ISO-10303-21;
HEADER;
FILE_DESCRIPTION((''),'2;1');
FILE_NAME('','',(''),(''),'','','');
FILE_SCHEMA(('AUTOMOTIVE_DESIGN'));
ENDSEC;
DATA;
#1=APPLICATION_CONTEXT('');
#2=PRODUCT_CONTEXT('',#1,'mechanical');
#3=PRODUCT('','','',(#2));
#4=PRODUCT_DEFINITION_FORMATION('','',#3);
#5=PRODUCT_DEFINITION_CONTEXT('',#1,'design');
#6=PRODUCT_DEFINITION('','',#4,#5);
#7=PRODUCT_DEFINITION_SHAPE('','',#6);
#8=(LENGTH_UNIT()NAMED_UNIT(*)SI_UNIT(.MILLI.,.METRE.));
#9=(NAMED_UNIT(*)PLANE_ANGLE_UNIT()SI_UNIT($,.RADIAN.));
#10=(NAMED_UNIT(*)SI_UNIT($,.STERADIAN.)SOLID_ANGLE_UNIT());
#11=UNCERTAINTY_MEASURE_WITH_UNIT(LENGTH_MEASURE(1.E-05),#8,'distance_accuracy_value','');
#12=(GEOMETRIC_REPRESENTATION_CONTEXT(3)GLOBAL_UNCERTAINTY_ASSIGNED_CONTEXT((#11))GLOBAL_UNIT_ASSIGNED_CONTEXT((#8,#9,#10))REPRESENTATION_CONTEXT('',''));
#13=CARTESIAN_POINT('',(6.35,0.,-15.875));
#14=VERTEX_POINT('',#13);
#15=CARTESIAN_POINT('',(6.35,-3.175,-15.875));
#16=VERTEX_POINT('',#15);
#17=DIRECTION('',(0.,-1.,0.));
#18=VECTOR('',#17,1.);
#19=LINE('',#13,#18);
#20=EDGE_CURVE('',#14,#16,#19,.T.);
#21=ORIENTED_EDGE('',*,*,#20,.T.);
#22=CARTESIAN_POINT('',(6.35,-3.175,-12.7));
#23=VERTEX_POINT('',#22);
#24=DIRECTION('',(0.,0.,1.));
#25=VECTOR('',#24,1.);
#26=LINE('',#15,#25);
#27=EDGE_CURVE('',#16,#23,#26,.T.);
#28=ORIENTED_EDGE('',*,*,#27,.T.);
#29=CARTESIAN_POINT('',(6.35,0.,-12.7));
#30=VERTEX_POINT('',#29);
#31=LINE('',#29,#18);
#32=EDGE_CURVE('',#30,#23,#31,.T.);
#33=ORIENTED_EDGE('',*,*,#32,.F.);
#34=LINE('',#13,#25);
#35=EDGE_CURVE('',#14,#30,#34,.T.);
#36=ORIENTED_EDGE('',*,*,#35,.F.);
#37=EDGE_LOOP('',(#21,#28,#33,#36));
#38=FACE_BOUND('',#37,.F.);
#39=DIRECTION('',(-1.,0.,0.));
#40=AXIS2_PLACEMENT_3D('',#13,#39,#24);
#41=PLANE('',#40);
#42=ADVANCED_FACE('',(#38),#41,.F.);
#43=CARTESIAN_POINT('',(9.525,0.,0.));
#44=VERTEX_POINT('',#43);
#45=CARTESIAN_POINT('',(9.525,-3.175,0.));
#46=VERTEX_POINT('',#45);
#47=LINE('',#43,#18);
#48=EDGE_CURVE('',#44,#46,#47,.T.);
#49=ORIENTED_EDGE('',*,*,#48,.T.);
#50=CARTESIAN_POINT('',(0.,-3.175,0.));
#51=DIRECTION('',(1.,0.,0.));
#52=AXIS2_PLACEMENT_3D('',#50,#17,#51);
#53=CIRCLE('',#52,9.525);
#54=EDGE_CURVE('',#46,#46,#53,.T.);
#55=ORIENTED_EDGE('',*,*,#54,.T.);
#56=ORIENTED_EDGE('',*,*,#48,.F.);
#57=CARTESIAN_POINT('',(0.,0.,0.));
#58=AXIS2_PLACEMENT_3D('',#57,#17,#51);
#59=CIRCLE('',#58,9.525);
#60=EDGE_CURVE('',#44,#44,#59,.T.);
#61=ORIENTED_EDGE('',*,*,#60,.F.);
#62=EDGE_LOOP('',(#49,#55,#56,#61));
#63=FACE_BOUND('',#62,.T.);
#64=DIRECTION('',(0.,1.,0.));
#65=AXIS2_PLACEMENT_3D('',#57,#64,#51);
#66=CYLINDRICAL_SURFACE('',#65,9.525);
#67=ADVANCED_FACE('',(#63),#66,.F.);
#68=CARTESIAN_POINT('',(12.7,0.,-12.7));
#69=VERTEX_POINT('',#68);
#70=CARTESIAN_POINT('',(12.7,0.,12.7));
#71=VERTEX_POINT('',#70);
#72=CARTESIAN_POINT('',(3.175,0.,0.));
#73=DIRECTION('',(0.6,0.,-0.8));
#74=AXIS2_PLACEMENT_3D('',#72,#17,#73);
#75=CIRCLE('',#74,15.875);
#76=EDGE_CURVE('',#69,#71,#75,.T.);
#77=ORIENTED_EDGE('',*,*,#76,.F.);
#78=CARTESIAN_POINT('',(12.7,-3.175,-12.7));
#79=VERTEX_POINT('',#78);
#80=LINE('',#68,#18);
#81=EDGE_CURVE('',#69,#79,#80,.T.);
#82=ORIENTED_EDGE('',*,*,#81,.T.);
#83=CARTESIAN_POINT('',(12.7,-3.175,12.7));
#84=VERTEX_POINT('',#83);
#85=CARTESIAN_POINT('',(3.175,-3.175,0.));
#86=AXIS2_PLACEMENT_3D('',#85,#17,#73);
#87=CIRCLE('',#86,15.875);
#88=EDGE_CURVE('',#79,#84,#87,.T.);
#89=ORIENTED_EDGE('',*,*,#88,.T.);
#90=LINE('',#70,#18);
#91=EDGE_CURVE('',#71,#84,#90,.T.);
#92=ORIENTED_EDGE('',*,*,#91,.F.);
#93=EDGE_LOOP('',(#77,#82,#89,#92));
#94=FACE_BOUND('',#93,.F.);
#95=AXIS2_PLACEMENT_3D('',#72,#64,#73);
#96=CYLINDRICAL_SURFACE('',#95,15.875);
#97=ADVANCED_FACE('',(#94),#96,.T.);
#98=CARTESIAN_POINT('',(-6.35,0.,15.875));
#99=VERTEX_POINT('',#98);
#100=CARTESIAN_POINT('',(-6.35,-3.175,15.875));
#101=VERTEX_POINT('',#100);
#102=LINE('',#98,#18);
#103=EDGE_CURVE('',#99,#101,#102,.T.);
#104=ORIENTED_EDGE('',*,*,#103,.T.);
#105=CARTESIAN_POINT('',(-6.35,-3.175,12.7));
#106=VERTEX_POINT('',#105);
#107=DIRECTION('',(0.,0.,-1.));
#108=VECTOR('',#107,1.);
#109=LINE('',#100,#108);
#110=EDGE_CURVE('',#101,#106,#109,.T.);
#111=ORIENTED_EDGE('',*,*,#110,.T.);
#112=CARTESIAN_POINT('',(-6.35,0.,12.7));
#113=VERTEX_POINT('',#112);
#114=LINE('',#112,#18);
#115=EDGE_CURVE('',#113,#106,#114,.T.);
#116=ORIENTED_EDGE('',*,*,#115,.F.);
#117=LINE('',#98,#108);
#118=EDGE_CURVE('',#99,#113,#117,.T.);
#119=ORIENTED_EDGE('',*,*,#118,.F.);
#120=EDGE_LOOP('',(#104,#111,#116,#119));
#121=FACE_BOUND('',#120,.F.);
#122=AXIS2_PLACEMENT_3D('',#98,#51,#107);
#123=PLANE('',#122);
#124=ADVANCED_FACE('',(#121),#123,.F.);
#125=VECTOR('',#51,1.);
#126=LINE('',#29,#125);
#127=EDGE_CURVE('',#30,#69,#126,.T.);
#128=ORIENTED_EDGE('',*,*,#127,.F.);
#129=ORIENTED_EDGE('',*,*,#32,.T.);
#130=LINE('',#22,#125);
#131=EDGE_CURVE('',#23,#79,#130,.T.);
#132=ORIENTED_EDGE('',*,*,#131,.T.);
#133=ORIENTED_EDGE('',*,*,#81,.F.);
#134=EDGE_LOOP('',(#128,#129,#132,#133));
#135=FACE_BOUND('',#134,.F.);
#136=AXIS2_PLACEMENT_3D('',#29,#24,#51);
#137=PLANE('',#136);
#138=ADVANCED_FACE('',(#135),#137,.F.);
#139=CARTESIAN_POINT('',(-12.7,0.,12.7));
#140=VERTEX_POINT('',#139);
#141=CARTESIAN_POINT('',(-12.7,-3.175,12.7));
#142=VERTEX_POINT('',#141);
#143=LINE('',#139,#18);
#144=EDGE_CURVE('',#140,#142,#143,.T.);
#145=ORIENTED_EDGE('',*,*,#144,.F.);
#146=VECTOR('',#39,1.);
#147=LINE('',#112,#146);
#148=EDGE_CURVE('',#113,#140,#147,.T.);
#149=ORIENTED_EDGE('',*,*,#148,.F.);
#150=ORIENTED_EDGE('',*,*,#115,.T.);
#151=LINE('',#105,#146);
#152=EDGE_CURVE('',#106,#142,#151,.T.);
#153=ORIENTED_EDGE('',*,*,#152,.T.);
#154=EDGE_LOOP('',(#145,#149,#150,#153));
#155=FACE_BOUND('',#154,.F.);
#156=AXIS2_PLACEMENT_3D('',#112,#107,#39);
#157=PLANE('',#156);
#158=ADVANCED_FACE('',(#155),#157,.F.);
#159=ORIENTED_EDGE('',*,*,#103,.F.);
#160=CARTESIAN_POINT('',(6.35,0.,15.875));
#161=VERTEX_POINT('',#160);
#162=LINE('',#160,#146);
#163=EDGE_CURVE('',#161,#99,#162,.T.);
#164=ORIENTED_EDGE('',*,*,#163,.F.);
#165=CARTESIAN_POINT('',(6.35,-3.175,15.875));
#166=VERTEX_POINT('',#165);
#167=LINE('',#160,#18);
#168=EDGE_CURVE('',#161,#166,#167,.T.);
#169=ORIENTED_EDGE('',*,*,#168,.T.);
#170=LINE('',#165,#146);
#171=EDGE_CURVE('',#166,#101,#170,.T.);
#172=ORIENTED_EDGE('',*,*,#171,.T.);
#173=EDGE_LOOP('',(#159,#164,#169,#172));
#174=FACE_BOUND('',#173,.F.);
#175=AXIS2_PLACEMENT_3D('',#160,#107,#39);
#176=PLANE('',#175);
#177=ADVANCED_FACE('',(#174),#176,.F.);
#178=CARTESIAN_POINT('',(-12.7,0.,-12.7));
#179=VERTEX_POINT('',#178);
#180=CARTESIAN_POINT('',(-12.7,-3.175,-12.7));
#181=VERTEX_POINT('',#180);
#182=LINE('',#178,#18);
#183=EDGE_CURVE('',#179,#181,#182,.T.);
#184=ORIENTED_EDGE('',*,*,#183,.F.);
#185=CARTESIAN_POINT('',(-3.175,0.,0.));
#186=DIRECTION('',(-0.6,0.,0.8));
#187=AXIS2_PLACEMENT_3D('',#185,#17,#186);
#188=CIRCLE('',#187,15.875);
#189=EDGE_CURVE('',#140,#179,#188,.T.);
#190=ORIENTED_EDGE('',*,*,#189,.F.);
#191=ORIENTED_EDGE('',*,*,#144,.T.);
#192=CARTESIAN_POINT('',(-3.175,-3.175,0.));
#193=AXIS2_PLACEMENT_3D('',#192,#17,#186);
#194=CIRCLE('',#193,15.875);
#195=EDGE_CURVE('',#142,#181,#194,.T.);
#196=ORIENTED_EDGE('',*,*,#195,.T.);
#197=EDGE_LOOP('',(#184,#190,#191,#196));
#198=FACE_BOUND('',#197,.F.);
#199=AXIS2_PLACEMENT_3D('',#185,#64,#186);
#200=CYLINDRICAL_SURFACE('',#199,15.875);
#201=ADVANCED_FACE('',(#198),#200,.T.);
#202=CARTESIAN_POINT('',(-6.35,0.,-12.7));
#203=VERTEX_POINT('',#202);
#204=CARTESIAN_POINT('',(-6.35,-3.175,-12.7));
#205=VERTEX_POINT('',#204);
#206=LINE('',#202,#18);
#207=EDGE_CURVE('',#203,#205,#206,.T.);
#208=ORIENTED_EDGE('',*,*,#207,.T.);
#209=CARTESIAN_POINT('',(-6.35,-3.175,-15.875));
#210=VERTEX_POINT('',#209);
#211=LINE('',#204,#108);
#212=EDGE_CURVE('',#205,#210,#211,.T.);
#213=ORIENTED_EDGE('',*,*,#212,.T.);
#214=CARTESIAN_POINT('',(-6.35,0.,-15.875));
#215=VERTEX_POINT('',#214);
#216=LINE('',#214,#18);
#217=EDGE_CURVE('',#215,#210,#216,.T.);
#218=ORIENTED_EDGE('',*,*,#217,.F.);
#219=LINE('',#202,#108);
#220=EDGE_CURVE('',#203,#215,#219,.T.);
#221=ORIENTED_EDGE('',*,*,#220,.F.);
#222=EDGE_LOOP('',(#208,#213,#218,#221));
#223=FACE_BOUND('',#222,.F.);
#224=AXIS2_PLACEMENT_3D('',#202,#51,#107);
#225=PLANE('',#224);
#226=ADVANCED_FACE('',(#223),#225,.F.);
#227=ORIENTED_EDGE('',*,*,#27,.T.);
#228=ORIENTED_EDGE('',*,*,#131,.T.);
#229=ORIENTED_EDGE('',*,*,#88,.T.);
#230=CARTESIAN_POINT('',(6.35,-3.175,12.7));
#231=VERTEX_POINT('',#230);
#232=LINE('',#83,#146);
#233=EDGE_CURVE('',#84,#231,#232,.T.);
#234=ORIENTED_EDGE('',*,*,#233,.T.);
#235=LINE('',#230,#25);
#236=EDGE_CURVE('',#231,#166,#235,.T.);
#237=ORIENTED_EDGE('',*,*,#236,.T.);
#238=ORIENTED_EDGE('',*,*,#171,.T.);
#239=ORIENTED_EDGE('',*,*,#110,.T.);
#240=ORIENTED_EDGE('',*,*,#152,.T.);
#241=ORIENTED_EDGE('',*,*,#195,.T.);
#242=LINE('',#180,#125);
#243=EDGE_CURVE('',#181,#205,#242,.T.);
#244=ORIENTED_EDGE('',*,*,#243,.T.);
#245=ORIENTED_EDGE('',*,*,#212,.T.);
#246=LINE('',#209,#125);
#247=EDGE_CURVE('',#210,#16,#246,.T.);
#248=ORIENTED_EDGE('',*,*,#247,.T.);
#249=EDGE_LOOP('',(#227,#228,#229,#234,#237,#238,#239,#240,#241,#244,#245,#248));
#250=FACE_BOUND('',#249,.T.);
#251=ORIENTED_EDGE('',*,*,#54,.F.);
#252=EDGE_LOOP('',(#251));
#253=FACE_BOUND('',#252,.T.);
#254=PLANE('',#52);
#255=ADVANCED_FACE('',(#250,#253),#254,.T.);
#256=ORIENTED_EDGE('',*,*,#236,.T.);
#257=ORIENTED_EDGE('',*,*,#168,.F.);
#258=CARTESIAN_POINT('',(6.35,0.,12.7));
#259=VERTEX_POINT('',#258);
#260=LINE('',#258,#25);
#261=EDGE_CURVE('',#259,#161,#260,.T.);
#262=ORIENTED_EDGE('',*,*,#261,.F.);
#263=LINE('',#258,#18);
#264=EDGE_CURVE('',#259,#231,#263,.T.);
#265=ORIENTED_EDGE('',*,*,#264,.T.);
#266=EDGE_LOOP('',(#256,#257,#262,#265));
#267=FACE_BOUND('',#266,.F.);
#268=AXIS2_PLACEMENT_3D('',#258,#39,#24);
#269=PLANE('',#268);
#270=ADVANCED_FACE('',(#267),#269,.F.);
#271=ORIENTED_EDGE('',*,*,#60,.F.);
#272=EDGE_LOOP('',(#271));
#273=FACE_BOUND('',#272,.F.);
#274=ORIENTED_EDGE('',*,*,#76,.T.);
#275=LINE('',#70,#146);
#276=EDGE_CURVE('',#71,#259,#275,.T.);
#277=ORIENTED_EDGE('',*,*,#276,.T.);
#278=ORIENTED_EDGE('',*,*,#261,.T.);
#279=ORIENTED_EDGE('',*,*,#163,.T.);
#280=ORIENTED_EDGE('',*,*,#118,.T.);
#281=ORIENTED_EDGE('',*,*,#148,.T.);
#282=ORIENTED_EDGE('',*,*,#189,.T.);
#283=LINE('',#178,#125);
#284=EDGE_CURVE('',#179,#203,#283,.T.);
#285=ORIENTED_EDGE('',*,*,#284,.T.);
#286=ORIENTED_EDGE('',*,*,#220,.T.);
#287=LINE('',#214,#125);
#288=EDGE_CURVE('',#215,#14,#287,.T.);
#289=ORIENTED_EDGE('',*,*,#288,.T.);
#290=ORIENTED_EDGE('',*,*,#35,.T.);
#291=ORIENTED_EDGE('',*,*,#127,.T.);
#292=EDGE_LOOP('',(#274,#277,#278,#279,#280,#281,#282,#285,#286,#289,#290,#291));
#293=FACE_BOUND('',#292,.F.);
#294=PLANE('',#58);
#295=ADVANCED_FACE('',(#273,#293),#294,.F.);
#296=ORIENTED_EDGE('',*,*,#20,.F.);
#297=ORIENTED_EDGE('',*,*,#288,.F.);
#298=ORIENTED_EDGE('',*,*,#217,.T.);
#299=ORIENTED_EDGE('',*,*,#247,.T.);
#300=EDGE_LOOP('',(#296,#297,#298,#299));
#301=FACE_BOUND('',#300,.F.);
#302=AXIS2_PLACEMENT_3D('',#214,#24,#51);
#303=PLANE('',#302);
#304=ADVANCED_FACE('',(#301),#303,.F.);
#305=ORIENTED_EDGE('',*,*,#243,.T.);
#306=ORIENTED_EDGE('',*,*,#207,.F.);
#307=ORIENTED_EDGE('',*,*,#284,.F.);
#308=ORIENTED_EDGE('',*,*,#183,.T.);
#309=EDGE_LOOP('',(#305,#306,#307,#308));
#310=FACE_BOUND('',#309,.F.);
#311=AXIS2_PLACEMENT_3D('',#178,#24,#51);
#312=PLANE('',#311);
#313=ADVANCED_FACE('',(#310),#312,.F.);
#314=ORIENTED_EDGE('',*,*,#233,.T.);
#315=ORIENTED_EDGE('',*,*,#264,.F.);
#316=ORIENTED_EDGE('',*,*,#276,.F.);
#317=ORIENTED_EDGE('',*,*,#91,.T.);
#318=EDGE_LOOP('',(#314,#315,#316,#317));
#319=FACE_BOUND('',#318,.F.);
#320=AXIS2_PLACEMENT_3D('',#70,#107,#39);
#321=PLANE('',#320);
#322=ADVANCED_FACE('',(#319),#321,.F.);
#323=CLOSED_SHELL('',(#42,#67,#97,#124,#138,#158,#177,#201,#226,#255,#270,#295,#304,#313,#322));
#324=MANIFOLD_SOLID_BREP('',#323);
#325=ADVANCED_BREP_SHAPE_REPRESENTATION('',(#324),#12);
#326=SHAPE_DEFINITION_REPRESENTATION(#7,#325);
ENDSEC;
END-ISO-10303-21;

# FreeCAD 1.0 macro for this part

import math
import FreeCAD as App
import Part
import Sketcher
Q = App.Units.Quantity

doc = App.newDocument("Part")
body = doc.addObject("PartDesign::Body", "Body")

# Sketch on XZ plane
sketch1 = doc.addObject("Sketcher::SketchObject", "Sketch")
body.addObject(sketch1)
sketch1.AttachmentSupport = (doc.XZ_Plane, [""])
sketch1.MapMode = "FlatFace"
sketch1.addGeometry([
    Part.LineSegment(App.Vector(-6.3, 12.7, 0), App.Vector(-12.7, 12.7, 0)),  # 0
    Part.ArcOfCircle(Part.Circle(App.Vector(-3.2, 0, 0), App.Vector(0, 0, 1), 15.9), math.radians(127), math.radians(233)),  # 1
    Part.LineSegment(App.Vector(-12.7, -12.7, 0), App.Vector(-6.3, -12.7, 0)),  # 2
    Part.LineSegment(App.Vector(-6.3, -12.7, 0), App.Vector(-6.3, -15.9, 0)),  # 3
    Part.LineSegment(App.Vector(-6.3, -15.9, 0), App.Vector(6.3, -15.9, 0)),  # 4
    Part.LineSegment(App.Vector(6.3, -15.9, 0), App.Vector(6.3, -12.7, 0)),  # 5
    Part.LineSegment(App.Vector(6.3, -12.7, 0), App.Vector(12.7, -12.7, 0)),  # 6
    Part.ArcOfCircle(Part.Circle(App.Vector(3.2, 0, 0), App.Vector(0, 0, 1), 15.9), math.radians(-53), math.radians(53)),  # 7
    Part.LineSegment(App.Vector(12.7, 12.7, 0), App.Vector(6.3, 12.7, 0)),  # 8
    Part.LineSegment(App.Vector(6.3, 12.7, 0), App.Vector(6.3, 15.9, 0)),  # 9
    Part.LineSegment(App.Vector(6.3, 15.9, 0), App.Vector(-6.3, 15.9, 0)),  # 10
    Part.LineSegment(App.Vector(-6.3, 15.9, 0), App.Vector(-6.3, 12.7, 0)),  # 11
    Part.Circle(App.Vector(0, 0, 0), App.Vector(0, 0, 1), 9.5),  # 12
], False)
sketch1.addConstraint([
    Sketcher.Constraint("Coincident", 0, 2, 1, 1),
    Sketcher.Constraint("Coincident", 1, 2, 2, 1),
    Sketcher.Constraint("Coincident", 2, 2, 3, 1),
    Sketcher.Constraint("Coincident", 3, 2, 4, 1),
    Sketcher.Constraint("Coincident", 4, 2, 5, 1),
    Sketcher.Constraint("Coincident", 5, 2, 6, 1),
    Sketcher.Constraint("Coincident", 6, 2, 7, 1),
    Sketcher.Constraint("Coincident", 7, 2, 8, 1),
    Sketcher.Constraint("Coincident", 8, 2, 9, 1),
    Sketcher.Constraint("Coincident", 9, 2, 10, 1),
    Sketcher.Constraint("Coincident", 10, 2, 11, 1),
    Sketcher.Constraint("Coincident", 11, 2, 0, 1),
    Sketcher.Constraint("Horizontal", 0),
    Sketcher.Constraint("Horizontal", 2),
    Sketcher.Constraint("Vertical", 3),
    Sketcher.Constraint("Horizontal", 4),
    Sketcher.Constraint("Vertical", 5),
    Sketcher.Constraint("Horizontal", 6),
    Sketcher.Constraint("Horizontal", 8),
    Sketcher.Constraint("Vertical", 9),
    Sketcher.Constraint("Horizontal", 10),
    Sketcher.Constraint("Vertical", 11),
    Sketcher.Constraint("Coincident", 12, 3, -1, 1),
    Sketcher.Constraint("Equal", 1, 7),
    Sketcher.Constraint("Symmetric", 1, 3, 7, 3, -1, 1),
    Sketcher.Constraint("Symmetric", 2, 2, 8, 2, -1, 1),
    Sketcher.Constraint("Symmetric", 4, 2, 10, 2, -1, 1),
    Sketcher.Constraint("Symmetric", 2, 2, 5, 2, -2),
    Sketcher.Constraint("Symmetric", 0, 2, 7, 2, -2),
    Sketcher.Constraint("Diameter", 12, Q("0.75 in")),
    Sketcher.Constraint("DistanceX", 4, 1, 4, 2, Q("0.5 in")),
    Sketcher.Constraint("Radius", 1, Q("0.625 in")),
    Sketcher.Constraint("DistanceY", 1, 2, 0, 2, Q("1 in")),
    Sketcher.Constraint("DistanceX", 0, 2, 7, 2, Q("1 in")),
    Sketcher.Constraint("DistanceY", 3, 2, 3, 1, Q("0.125 in")),
])
pad1 = doc.addObject("PartDesign::Pad", "Pad")
body.addObject(pad1)
pad1.Profile = sketch1
pad1.Length = Q("0.125 in")

doc.recompute()
